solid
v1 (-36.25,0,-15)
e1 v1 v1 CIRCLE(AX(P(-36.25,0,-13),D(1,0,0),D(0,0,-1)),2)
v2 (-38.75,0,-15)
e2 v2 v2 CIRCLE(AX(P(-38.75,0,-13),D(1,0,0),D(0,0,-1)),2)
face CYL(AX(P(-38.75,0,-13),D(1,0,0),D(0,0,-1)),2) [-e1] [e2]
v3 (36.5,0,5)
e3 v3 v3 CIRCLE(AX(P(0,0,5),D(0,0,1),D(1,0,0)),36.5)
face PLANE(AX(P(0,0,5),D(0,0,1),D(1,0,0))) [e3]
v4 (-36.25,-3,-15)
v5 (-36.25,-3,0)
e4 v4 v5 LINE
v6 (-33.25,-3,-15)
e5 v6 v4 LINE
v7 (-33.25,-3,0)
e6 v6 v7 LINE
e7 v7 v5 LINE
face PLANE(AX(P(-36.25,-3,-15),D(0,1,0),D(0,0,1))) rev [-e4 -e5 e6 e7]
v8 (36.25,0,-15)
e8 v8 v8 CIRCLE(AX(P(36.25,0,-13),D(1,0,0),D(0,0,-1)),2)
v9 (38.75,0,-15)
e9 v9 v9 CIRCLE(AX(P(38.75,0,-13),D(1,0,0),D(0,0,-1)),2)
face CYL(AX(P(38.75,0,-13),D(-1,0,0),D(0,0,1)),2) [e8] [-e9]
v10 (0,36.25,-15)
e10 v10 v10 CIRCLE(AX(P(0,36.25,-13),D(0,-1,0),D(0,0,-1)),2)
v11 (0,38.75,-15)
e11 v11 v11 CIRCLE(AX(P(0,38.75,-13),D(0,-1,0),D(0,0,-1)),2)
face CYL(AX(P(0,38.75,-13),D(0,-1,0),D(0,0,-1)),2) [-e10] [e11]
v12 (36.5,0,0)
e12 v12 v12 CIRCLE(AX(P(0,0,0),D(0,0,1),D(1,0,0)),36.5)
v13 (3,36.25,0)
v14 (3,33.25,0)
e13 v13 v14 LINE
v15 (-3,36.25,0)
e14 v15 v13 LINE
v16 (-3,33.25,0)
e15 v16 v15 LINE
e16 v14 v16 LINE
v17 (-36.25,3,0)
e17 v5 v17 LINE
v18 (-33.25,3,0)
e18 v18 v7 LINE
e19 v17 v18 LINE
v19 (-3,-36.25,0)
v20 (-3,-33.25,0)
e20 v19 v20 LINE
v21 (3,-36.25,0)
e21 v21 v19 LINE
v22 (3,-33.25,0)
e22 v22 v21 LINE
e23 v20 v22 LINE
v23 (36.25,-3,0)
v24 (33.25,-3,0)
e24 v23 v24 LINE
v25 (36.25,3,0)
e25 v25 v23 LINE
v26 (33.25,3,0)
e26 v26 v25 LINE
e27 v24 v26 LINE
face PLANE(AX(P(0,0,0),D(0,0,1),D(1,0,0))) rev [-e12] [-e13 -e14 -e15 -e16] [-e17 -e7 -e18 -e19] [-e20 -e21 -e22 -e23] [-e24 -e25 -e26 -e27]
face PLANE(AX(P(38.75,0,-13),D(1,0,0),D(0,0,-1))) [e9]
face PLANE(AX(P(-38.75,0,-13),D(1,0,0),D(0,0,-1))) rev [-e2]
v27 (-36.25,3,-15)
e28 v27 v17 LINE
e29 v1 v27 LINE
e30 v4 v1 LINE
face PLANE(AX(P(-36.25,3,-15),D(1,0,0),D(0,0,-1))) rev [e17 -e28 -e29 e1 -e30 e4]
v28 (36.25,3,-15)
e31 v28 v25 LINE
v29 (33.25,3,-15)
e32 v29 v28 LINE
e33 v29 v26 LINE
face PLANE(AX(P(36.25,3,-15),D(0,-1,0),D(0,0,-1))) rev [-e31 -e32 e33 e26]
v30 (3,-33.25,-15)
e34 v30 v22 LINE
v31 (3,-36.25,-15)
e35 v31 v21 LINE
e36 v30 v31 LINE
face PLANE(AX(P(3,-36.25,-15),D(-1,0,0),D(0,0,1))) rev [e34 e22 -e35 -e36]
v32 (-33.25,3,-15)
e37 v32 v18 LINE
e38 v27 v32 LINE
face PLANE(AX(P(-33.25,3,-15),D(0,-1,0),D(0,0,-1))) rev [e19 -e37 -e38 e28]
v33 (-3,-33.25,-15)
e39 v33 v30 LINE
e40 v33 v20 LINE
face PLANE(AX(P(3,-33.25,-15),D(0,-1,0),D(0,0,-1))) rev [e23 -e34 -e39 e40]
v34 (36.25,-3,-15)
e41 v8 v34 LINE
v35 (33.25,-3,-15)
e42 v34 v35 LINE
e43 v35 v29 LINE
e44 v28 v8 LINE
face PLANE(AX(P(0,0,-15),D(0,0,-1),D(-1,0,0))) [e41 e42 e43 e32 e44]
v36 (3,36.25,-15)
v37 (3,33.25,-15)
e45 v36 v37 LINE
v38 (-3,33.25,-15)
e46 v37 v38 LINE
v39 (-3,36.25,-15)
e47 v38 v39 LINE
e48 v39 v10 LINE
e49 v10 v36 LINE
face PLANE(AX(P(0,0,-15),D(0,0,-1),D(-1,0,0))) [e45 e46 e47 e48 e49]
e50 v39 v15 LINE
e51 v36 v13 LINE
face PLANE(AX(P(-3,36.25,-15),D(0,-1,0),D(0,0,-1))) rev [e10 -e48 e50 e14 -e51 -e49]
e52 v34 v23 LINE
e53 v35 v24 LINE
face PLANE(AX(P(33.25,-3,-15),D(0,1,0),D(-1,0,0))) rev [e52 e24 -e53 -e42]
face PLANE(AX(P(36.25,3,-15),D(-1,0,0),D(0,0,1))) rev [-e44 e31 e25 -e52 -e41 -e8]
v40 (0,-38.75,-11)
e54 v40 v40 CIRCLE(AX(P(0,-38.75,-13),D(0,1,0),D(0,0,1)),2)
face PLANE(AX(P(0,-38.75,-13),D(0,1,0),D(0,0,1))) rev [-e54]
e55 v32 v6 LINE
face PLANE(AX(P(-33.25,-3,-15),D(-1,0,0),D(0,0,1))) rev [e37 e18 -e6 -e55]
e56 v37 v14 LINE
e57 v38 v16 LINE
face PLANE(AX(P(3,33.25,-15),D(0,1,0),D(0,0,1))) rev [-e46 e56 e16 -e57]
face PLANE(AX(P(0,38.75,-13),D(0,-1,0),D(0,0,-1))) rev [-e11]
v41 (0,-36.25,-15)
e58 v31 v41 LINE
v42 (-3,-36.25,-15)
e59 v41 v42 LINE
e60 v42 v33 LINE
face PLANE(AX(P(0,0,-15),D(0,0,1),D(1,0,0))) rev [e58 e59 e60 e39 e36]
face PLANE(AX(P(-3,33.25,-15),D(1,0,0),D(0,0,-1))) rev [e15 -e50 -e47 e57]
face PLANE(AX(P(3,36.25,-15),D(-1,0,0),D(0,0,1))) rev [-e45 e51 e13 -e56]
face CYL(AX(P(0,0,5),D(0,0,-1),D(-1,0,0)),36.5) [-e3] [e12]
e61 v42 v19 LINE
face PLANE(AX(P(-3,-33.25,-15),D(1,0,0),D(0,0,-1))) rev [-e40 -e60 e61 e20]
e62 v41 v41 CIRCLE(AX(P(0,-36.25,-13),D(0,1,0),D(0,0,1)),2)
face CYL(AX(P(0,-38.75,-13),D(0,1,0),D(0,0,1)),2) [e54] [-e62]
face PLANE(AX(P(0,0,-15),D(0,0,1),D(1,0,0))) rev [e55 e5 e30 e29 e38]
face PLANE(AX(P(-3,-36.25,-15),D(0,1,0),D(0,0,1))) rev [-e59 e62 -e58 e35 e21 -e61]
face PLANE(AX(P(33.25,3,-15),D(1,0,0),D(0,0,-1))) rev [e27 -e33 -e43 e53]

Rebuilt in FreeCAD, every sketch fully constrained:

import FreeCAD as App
import Part
import Sketcher


def add_polygon(sketch, points):
    """Adds a closed chain of lines whose ends are joined by coincident constraints."""
    first, n = sketch.GeometryCount, len(points)
    for a, b in zip(points, points[1:] + points[:1]):
        sketch.addGeometry(Part.LineSegment(App.Vector(*a, 0), App.Vector(*b, 0)), False)
    for i in range(n):
        sketch.addConstraint(Sketcher.Constraint("Coincident", first + i, 2, first + (i + 1) % n, 1))

doc = App.newDocument("Part")
body = doc.addObject("PartDesign::Body", "Body")

# Sketch on XY plane
sketch1 = doc.addObject("Sketcher::SketchObject", "Sketch")
body.addObject(sketch1)
sketch1.AttachmentSupport = (doc.XY_Plane, [""])
sketch1.MapMode = "FlatFace"
sketch1.addGeometry(Part.Circle(App.Vector(0, 0, 0), App.Vector(0, 0, 1), 36), False)
sketch1.addConstraint(Sketcher.Constraint("Coincident", 0, 3, -1, 1))
sketch1.addConstraint(Sketcher.Constraint("Diameter", 0, 73.0))
pad1 = doc.addObject("PartDesign::Pad", "Pad")
body.addObject(pad1)
pad1.Profile = sketch1
pad1.Length = 5

# Sketch on XY plane
sketch2 = doc.addObject("Sketcher::SketchObject", "Sketch001")
body.addObject(sketch2)
sketch2.AttachmentSupport = (doc.XY_Plane, [""])
sketch2.MapMode = "FlatFace"
add_polygon(sketch2, [(36.2, 3), (36.2, -3), (33.2, -3), (33.2, 3)])  # lines 0-3
add_polygon(sketch2, [(-33.2, 3), (-33.2, -3), (-36.2, -3), (-36.2, 3)])  # lines 4-7
add_polygon(sketch2, [(3, 36.2), (3, 33.2), (-3, 33.2), (-3, 36.2)])  # lines 8-11
add_polygon(sketch2, [(3, -33.2), (3, -36.2), (-3, -36.2), (-3, -33.2)])  # lines 12-15
sketch2.addConstraint(Sketcher.Constraint("Vertical", 0))
sketch2.addConstraint(Sketcher.Constraint("Horizontal", 1))
sketch2.addConstraint(Sketcher.Constraint("Vertical", 2))
sketch2.addConstraint(Sketcher.Constraint("Horizontal", 3))
sketch2.addConstraint(Sketcher.Constraint("Vertical", 4))
sketch2.addConstraint(Sketcher.Constraint("Horizontal", 5))
sketch2.addConstraint(Sketcher.Constraint("Vertical", 6))
sketch2.addConstraint(Sketcher.Constraint("Horizontal", 7))
sketch2.addConstraint(Sketcher.Constraint("Vertical", 8))
sketch2.addConstraint(Sketcher.Constraint("Horizontal", 9))
sketch2.addConstraint(Sketcher.Constraint("Vertical", 10))
sketch2.addConstraint(Sketcher.Constraint("Horizontal", 11))
sketch2.addConstraint(Sketcher.Constraint("Vertical", 12))
sketch2.addConstraint(Sketcher.Constraint("Horizontal", 13))
sketch2.addConstraint(Sketcher.Constraint("Vertical", 14))
sketch2.addConstraint(Sketcher.Constraint("Horizontal", 15))
sketch2.addConstraint(Sketcher.Constraint("Symmetric", 2, 2, 4, 2, -1, 1))
sketch2.addConstraint(Sketcher.Constraint("Symmetric", 0, 2, 6, 2, -1, 1))
sketch2.addConstraint(Sketcher.Constraint("Symmetric", 10, 2, 12, 2, -1, 1))
sketch2.addConstraint(Sketcher.Constraint("Symmetric", 8, 2, 14, 2, -1, 1))
sketch2.addConstraint(Sketcher.Constraint("Horizontal", 1, 2, 4, 2))
sketch2.addConstraint(Sketcher.Constraint("Vertical", 11, 2, 12, 2))
sketch2.addConstraint(Sketcher.Constraint("Equal", 15, 0))
sketch2.addConstraint(Sketcher.Constraint("Equal", 7, 8))
sketch2.addConstraint(Sketcher.Constraint("DistanceX", 1, 2, 1, 1, 3.0))
sketch2.addConstraint(Sketcher.Constraint("DistanceX", 9, 2, 9, 1, 6.0))
sketch2.addConstraint(Sketcher.Constraint("DistanceX", 4, 2, 1, 2, 66.5))
sketch2.addConstraint(Sketcher.Constraint("DistanceY", -1, 1, 8, 2, 33.25))
pad2 = doc.addObject("PartDesign::Pad", "Pad001")
body.addObject(pad2)
pad2.Profile = sketch2
pad2.Length = 15
pad2.Reversed = True

# Sketch on YZ plane
sketch3 = doc.addObject("Sketcher::SketchObject", "Sketch002")
body.addObject(sketch3)
sketch3.AttachmentSupport = (doc.YZ_Plane, [""])
sketch3.MapMode = "FlatFace"
sketch3.AttachmentOffset = App.Placement(App.Vector(0, 0, 36.25), App.Rotation())
sketch3.addGeometry(Part.Circle(App.Vector(0, -13, 0), App.Vector(0, 0, 1), 2), False)
sketch3.addConstraint(Sketcher.Constraint("PointOnObject", 0, 3, -2))
sketch3.addConstraint(Sketcher.Constraint("Diameter", 0, 4.0))
sketch3.addConstraint(Sketcher.Constraint("DistanceY", 0, 3, -1, 1, 13.0))
pad3 = doc.addObject("PartDesign::Pad", "Pad002")
body.addObject(pad3)
pad3.Profile = sketch3
pad3.Length = 2.5

# Sketch on XZ plane
sketch4 = doc.addObject("Sketcher::SketchObject", "Sketch003")
body.addObject(sketch4)
sketch4.AttachmentSupport = (doc.XZ_Plane, [""])
sketch4.MapMode = "FlatFace"
sketch4.AttachmentOffset = App.Placement(App.Vector(0, 0, 36.25), App.Rotation())
sketch4.addGeometry(Part.Circle(App.Vector(0, -13, 0), App.Vector(0, 0, 1), 2), False)
sketch4.addConstraint(Sketcher.Constraint("PointOnObject", 0, 3, -2))
sketch4.addConstraint(Sketcher.Constraint("Diameter", 0, 4.0))
sketch4.addConstraint(Sketcher.Constraint("DistanceY", 0, 3, -1, 1, 13.0))
pad4 = doc.addObject("PartDesign::Pad", "Pad003")
body.addObject(pad4)
pad4.Profile = sketch4
pad4.Length = 2.5

# Sketch on YZ plane
sketch5 = doc.addObject("Sketcher::SketchObject", "Sketch004")
body.addObject(sketch5)
sketch5.AttachmentSupport = (doc.YZ_Plane, [""])
sketch5.MapMode = "FlatFace"
sketch5.AttachmentOffset = App.Placement(App.Vector(0, 0, -38.75), App.Rotation())
sketch5.addGeometry(Part.Circle(App.Vector(0, -13, 0), App.Vector(0, 0, 1), 2), False)
sketch5.addConstraint(Sketcher.Constraint("PointOnObject", 0, 3, -2))
sketch5.addConstraint(Sketcher.Constraint("Diameter", 0, 4.0))
sketch5.addConstraint(Sketcher.Constraint("DistanceY", 0, 3, -1, 1, 13.0))
pad5 = doc.addObject("PartDesign::Pad", "Pad004")
body.addObject(pad5)
pad5.Profile = sketch5
pad5.Length = 2.5

# Sketch on XZ plane
sketch6 = doc.addObject("Sketcher::SketchObject", "Sketch005")
body.addObject(sketch6)
sketch6.AttachmentSupport = (doc.XZ_Plane, [""])
sketch6.MapMode = "FlatFace"
sketch6.AttachmentOffset = App.Placement(App.Vector(0, 0, -38.75), App.Rotation())
sketch6.addGeometry(Part.Circle(App.Vector(0, -13, 0), App.Vector(0, 0, 1), 2), False)
sketch6.addConstraint(Sketcher.Constraint("PointOnObject", 0, 3, -2))
sketch6.addConstraint(Sketcher.Constraint("Diameter", 0, 4.0))
sketch6.addConstraint(Sketcher.Constraint("DistanceY", 0, 3, -1, 1, 13.0))
pad6 = doc.addObject("PartDesign::Pad", "Pad005")
body.addObject(pad6)
pad6.Profile = sketch6
pad6.Length = 2.5

doc.recompute()
